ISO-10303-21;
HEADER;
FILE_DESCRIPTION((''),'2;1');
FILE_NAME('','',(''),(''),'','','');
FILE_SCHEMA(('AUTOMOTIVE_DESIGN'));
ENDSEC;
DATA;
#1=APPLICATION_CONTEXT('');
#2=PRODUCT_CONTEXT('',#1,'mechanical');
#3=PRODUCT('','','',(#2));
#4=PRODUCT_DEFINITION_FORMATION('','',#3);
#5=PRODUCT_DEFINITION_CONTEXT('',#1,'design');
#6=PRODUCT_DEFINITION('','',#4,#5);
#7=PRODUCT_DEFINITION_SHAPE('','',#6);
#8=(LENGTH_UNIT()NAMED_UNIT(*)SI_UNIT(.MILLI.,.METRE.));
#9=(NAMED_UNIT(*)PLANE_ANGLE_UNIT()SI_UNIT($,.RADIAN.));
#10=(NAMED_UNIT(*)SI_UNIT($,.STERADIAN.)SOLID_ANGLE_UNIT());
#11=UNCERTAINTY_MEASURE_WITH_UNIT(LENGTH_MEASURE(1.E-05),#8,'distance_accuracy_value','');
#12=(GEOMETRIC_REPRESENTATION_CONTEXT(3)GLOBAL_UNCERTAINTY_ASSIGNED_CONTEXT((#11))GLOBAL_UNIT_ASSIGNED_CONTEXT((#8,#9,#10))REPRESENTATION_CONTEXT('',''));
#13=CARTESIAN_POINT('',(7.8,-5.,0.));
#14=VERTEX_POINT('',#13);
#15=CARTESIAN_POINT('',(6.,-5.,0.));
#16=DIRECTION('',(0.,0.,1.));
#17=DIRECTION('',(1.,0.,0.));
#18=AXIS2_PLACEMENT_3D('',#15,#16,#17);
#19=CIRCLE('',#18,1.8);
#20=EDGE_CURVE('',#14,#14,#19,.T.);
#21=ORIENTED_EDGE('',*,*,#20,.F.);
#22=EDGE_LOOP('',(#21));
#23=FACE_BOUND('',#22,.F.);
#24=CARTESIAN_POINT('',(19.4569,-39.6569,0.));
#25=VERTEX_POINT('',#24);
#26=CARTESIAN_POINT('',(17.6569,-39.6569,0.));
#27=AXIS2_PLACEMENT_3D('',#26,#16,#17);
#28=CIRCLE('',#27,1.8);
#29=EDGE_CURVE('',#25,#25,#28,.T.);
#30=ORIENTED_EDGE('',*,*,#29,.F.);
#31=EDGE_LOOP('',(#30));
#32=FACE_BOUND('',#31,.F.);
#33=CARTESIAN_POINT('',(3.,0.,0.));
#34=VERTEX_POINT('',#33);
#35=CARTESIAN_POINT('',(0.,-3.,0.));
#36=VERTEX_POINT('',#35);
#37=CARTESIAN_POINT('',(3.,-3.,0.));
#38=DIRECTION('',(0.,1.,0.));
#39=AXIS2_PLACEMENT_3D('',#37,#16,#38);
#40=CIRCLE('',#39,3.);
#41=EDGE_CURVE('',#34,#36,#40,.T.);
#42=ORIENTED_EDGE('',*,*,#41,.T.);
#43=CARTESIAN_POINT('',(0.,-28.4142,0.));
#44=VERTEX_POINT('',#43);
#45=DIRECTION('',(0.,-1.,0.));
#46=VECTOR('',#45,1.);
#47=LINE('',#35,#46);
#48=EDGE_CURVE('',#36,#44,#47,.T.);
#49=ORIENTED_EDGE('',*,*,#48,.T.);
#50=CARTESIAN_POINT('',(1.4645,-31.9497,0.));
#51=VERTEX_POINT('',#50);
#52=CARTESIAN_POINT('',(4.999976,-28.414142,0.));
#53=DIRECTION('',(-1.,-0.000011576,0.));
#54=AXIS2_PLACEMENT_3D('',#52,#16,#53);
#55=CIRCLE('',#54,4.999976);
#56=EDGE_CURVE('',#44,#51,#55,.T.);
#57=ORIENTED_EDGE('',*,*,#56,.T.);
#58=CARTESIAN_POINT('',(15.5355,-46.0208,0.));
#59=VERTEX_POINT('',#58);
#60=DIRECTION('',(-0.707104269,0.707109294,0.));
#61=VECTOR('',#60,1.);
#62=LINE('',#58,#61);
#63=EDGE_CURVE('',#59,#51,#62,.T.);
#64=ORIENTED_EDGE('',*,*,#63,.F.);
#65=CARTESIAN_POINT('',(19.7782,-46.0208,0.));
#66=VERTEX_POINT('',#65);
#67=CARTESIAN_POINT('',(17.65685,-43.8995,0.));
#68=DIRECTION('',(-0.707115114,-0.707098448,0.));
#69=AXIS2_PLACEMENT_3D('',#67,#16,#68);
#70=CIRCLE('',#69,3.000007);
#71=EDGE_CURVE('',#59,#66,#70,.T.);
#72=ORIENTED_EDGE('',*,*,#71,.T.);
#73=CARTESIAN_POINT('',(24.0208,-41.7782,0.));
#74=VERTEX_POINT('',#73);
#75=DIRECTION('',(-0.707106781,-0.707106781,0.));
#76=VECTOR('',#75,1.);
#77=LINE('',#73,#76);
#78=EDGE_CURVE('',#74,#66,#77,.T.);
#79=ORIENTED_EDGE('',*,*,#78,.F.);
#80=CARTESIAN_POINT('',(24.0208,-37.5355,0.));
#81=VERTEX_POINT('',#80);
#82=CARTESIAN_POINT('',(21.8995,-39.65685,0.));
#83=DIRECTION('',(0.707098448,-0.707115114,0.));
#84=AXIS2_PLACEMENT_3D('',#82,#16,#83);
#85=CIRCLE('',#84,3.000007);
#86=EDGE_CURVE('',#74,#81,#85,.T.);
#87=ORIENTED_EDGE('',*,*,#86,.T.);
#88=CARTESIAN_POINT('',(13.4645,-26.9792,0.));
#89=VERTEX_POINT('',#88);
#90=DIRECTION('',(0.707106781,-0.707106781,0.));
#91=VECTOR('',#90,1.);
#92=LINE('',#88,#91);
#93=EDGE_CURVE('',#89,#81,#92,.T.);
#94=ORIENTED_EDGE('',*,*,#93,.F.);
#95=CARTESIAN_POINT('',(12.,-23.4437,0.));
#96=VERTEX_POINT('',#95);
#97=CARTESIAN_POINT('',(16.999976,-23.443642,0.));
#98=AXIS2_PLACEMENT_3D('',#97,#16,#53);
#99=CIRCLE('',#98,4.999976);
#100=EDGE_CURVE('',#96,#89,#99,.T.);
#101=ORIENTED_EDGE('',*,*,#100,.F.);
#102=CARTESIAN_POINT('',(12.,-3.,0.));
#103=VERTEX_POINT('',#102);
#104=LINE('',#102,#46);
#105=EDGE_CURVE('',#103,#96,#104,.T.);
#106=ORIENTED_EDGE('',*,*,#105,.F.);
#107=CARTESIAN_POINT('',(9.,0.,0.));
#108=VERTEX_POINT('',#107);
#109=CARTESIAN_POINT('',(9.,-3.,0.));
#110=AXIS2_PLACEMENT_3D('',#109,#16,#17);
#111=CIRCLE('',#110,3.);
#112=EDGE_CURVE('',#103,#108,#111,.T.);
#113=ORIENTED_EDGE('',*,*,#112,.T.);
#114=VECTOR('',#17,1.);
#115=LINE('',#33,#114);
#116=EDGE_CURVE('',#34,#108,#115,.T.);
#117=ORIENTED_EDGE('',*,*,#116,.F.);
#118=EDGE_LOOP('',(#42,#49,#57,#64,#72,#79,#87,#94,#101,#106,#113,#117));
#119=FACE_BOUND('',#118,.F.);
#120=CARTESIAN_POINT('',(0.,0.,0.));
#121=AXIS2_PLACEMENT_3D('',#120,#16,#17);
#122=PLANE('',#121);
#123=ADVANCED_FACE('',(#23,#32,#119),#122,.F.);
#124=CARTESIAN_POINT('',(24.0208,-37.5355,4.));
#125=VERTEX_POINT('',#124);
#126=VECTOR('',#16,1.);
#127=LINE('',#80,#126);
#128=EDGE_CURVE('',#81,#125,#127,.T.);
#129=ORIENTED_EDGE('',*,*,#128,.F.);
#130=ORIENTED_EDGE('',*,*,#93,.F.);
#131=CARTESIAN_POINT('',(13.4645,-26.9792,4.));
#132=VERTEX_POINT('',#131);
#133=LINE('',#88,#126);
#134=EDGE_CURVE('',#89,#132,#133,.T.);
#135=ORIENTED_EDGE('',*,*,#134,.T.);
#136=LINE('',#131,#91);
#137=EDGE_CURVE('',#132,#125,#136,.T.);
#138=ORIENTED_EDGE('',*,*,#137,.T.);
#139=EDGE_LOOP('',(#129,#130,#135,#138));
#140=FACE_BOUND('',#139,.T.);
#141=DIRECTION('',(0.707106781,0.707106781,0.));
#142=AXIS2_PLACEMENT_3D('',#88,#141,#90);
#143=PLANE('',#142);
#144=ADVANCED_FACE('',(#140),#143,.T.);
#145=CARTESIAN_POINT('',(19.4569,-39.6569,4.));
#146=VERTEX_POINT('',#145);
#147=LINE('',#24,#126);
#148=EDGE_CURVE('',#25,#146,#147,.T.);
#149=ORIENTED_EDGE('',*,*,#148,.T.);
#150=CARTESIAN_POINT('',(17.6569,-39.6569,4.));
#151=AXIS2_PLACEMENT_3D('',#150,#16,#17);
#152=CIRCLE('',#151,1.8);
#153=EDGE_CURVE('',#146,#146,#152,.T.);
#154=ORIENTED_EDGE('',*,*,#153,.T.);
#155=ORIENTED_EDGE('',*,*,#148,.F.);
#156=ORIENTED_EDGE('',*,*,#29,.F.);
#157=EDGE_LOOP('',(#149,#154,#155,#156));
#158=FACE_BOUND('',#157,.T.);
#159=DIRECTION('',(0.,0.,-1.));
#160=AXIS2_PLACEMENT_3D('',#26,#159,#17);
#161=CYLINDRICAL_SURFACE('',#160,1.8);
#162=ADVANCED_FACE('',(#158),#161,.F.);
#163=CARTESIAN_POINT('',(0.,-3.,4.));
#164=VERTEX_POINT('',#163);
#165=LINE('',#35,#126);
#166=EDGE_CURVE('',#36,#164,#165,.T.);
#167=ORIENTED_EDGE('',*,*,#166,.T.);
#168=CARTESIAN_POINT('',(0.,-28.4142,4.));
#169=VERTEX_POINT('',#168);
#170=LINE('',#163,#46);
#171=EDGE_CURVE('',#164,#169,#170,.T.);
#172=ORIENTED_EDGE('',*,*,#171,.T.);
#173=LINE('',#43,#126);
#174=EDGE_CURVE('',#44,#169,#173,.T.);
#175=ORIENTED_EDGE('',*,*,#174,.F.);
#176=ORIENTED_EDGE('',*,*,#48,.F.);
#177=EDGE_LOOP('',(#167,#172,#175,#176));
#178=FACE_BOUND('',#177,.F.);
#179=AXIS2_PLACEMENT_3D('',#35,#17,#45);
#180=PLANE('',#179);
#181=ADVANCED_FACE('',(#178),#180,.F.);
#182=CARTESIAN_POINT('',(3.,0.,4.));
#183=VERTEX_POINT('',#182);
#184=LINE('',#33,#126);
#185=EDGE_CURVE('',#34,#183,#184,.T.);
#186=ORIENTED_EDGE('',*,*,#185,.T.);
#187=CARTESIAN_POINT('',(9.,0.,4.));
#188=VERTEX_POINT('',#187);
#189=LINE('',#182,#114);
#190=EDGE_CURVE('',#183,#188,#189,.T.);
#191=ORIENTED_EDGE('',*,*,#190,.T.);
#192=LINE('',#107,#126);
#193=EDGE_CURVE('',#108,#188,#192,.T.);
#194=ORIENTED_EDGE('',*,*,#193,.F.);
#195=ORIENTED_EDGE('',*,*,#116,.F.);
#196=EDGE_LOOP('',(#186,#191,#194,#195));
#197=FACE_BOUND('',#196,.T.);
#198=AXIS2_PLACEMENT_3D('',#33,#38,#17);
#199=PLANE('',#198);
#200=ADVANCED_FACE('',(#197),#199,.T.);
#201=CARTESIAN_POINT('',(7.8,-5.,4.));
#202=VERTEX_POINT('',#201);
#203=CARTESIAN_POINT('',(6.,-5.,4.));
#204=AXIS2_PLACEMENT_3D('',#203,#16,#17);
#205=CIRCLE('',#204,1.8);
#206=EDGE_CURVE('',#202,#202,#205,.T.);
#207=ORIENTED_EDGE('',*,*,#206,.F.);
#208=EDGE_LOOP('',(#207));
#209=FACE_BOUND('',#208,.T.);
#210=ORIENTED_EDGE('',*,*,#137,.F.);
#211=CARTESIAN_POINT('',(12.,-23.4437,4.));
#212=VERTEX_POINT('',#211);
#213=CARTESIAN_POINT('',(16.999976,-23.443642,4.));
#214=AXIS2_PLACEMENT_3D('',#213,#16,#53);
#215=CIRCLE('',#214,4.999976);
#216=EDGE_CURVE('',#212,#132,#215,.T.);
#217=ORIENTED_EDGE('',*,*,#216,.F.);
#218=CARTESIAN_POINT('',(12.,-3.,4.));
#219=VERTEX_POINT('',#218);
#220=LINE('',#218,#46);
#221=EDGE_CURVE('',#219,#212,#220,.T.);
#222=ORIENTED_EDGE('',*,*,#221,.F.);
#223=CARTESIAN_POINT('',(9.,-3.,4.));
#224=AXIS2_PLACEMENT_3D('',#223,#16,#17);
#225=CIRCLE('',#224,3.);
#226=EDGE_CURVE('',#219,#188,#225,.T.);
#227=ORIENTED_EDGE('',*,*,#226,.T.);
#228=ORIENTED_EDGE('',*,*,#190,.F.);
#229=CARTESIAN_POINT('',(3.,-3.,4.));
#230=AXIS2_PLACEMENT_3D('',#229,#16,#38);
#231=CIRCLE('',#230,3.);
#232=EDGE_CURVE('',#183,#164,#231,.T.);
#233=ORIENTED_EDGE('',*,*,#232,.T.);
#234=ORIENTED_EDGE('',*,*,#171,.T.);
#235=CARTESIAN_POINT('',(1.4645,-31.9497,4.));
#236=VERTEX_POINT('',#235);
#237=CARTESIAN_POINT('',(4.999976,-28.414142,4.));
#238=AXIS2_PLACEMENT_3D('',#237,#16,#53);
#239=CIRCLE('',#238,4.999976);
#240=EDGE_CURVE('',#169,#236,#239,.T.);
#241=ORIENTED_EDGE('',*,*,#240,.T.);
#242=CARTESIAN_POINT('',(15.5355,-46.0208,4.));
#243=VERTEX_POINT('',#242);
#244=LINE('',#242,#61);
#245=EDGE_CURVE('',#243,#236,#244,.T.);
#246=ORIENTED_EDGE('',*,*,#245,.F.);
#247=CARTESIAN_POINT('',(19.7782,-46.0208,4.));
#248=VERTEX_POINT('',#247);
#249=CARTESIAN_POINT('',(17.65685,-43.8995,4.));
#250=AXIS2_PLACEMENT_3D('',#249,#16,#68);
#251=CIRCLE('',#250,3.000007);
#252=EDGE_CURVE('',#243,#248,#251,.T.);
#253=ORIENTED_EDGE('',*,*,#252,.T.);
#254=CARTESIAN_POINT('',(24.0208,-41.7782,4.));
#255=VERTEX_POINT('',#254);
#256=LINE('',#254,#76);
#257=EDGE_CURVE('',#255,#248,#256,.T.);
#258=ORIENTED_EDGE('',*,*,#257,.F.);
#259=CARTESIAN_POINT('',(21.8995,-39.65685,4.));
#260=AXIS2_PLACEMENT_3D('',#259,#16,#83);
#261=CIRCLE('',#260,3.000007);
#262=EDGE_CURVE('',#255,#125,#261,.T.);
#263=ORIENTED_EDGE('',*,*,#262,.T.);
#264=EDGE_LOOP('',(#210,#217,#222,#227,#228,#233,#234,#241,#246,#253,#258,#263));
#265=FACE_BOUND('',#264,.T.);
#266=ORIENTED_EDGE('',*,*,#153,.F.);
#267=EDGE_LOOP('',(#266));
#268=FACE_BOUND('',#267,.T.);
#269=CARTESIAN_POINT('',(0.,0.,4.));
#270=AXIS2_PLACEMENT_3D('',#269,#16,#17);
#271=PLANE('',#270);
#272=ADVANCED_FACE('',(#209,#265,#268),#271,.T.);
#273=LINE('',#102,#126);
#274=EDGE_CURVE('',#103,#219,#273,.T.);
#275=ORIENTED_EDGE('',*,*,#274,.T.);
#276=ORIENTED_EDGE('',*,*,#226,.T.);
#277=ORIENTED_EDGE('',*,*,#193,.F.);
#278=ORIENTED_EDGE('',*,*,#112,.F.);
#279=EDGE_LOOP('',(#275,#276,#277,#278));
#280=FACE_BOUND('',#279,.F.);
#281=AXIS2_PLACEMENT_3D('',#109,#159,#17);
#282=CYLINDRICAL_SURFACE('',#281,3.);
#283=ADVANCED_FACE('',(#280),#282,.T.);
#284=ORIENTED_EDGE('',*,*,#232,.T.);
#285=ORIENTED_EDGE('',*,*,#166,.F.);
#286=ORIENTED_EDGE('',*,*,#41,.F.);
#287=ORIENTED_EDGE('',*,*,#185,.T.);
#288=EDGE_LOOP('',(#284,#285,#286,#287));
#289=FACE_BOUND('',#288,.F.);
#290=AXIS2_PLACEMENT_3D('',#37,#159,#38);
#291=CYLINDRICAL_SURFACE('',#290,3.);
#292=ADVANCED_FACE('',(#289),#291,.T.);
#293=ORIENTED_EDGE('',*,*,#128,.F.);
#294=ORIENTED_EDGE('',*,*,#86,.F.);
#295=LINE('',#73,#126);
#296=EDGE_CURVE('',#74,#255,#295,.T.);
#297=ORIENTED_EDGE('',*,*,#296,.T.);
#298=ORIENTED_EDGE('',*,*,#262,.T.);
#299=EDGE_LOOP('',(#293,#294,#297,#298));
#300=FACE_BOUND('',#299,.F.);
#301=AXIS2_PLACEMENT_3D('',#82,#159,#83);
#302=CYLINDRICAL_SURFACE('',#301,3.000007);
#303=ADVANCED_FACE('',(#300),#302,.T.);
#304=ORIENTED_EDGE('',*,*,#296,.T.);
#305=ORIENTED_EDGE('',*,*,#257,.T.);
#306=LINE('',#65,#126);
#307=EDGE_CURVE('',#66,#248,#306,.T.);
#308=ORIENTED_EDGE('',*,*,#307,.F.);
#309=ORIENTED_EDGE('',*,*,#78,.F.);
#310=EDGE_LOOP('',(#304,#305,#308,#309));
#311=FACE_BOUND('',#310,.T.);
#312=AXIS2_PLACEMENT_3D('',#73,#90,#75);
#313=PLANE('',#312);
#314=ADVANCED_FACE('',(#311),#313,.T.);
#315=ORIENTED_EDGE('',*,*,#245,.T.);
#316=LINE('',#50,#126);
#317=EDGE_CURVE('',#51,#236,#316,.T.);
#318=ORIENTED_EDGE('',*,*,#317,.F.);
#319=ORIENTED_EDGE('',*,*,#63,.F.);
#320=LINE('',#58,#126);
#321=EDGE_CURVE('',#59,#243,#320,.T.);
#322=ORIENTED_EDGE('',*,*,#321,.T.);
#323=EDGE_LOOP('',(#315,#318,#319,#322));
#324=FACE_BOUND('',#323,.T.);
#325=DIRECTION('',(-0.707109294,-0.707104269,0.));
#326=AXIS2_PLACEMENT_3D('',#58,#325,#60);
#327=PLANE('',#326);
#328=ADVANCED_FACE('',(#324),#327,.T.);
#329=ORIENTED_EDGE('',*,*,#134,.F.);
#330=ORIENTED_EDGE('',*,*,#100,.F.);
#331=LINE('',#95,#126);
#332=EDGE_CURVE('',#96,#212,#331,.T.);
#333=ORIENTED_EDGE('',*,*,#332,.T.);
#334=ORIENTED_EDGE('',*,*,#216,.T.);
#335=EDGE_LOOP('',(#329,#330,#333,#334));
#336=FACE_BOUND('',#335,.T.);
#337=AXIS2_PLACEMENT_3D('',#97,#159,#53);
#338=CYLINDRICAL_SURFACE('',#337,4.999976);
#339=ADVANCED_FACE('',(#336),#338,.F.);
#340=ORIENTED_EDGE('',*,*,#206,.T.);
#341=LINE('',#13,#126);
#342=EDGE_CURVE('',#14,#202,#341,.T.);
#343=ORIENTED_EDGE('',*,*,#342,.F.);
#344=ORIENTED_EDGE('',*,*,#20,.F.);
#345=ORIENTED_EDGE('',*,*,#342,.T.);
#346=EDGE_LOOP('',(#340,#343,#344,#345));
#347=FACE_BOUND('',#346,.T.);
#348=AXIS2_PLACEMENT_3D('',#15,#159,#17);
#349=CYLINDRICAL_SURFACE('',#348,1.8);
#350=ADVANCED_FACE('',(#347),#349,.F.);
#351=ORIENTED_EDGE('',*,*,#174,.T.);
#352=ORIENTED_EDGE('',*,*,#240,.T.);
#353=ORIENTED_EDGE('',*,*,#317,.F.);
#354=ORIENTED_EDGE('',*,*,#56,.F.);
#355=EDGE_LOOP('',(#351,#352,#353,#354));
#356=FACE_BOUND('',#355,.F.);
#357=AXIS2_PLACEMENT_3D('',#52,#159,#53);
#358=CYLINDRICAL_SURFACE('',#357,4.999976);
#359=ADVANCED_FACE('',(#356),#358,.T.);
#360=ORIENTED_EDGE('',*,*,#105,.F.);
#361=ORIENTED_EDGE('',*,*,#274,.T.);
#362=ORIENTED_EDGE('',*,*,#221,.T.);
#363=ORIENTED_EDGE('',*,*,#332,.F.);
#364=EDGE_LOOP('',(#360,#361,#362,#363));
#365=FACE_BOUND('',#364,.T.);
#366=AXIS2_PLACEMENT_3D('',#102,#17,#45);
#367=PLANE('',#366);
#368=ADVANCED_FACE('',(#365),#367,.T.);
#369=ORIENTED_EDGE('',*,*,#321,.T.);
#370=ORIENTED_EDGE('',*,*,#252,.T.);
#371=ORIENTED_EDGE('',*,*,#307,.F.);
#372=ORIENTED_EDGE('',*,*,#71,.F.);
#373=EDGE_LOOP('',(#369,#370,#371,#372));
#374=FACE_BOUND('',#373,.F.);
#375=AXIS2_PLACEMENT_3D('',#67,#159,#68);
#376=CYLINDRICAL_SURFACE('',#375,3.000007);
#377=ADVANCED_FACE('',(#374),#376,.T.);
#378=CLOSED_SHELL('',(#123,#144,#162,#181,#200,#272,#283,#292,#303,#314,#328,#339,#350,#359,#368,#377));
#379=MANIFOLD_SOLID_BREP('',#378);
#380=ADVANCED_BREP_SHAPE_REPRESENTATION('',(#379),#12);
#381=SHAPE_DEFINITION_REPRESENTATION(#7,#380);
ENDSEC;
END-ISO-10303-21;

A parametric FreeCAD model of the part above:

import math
import FreeCAD as App
import Part
import Sketcher
Q = App.Units.Quantity

doc = App.newDocument("Part")
body = doc.addObject("PartDesign::Body", "Body")

# Sketch on XY plane
sketch1 = body.newObject("Sketcher::SketchObject", "Sketch")
sketch1.AttachmentSupport = (doc.getObject("XY_Plane"), [""])
sketch1.MapMode = "FlatFace"
sketch1.addGeometry([
    Part.ArcOfCircle(Part.Circle(App.Vector(3, -3, 0), App.Vector(0, 0, 1), 3), math.radians(90), math.radians(180)),  # 0
    Part.LineSegment(App.Vector(0, -3, 0), App.Vector(0, -28.4, 0)),  # 1
    Part.ArcOfCircle(Part.Circle(App.Vector(5, -28.4, 0), App.Vector(0, 0, 1), 5), math.radians(180), math.radians(225)),  # 2
    Part.LineSegment(App.Vector(1.5, -31.9, 0), App.Vector(15.5, -46, 0)),  # 3
    Part.ArcOfCircle(Part.Circle(App.Vector(17.7, -43.9, 0), App.Vector(0, 0, 1), 3), math.radians(-135), math.radians(-45)),  # 4
    Part.LineSegment(App.Vector(19.8, -46, 0), App.Vector(24, -41.8, 0)),  # 5
    Part.ArcOfCircle(Part.Circle(App.Vector(21.9, -39.7, 0), App.Vector(0, 0, 1), 3), math.radians(-45), math.radians(45)),  # 6
    Part.LineSegment(App.Vector(24, -37.5, 0), App.Vector(13.5, -27, 0)),  # 7
    Part.ArcOfCircle(Part.Circle(App.Vector(17, -23.4, 0), App.Vector(0, 0, 1), 5), math.radians(180), math.radians(225)),  # 8
    Part.LineSegment(App.Vector(12, -23.4, 0), App.Vector(12, -3, 0)),  # 9
    Part.ArcOfCircle(Part.Circle(App.Vector(9, -3, 0), App.Vector(0, 0, 1), 3), math.radians(0), math.radians(90)),  # 10
    Part.LineSegment(App.Vector(9, 0, 0), App.Vector(3, 0, 0)),  # 11
    Part.Circle(App.Vector(17.7, -39.7, 0), App.Vector(0, 0, 1), 1.8),  # 12
    Part.Circle(App.Vector(6, -5, 0), App.Vector(0, 0, 1), 1.8),  # 13
], False)
sketch1.addConstraint([
    Sketcher.Constraint("Tangent", 0, 2, 1, 1),
    Sketcher.Constraint("Tangent", 1, 2, 2, 1),
    Sketcher.Constraint("Tangent", 2, 2, 3, 1),
    Sketcher.Constraint("Tangent", 3, 2, 4, 1),
    Sketcher.Constraint("Tangent", 4, 2, 5, 1),
    Sketcher.Constraint("Tangent", 5, 2, 6, 1),
    Sketcher.Constraint("Tangent", 6, 2, 7, 1),
    Sketcher.Constraint("Tangent", 7, 2, 8, 2),
    Sketcher.Constraint("Tangent", 8, 1, 9, 1),
    Sketcher.Constraint("Tangent", 9, 2, 10, 1),
    Sketcher.Constraint("Tangent", 10, 2, 11, 1),
    Sketcher.Constraint("Tangent", 11, 2, 0, 1),
    Sketcher.Constraint("Vertical", 1),
    Sketcher.Constraint("Vertical", 9),
    Sketcher.Constraint("Horizontal", 11),
    Sketcher.Constraint("Equal", 0, 4),
    Sketcher.Constraint("Equal", 4, 6),
    Sketcher.Constraint("Equal", 2, 8),
    Sketcher.Constraint("Equal", 6, 10),
    Sketcher.Constraint("Equal", 12, 13),
    Sketcher.Constraint("PointOnObject", 0, 2, -2),
    Sketcher.Constraint("PointOnObject", 10, 2, -1),
    Sketcher.Constraint("Perpendicular", 3, 5),
    Sketcher.Constraint("Perpendicular", 5, 7),
    Sketcher.Constraint("Horizontal", 6, 3, 12, 3),
    Sketcher.Constraint("Horizontal", 3, 2, 4, 2),
    Sketcher.Constraint("Vertical", 4, 3, 12, 3),
    Sketcher.Constraint("Radius", 0, Q("3 mm")),
    Sketcher.Constraint("Radius", 2, Q("5 mm")),
    Sketcher.Constraint("Diameter", 12, Q("3.6 mm")),
    Sketcher.Constraint("DistanceX", 11, 2, 11, 1, Q("6 mm")),
    Sketcher.Constraint("Distance", 5, Q("6 mm")),
    Sketcher.Constraint("DistanceX", -1, 1, 13, 3, Q("6 mm")),
    Sketcher.Constraint("DistanceY", 13, 3, -1, 1, Q("5 mm")),
    Sketcher.Constraint("DistanceY", 1, 2, 1, 1, Q("25.4142 mm")),
    Sketcher.Constraint("DistanceX", -1, 1, 4, 3, Q("17.657 mm")),
])
pad1 = body.newObject("PartDesign::Pad", "Pad")
pad1.Profile = sketch1
pad1.Length = 4

doc.recompute()
